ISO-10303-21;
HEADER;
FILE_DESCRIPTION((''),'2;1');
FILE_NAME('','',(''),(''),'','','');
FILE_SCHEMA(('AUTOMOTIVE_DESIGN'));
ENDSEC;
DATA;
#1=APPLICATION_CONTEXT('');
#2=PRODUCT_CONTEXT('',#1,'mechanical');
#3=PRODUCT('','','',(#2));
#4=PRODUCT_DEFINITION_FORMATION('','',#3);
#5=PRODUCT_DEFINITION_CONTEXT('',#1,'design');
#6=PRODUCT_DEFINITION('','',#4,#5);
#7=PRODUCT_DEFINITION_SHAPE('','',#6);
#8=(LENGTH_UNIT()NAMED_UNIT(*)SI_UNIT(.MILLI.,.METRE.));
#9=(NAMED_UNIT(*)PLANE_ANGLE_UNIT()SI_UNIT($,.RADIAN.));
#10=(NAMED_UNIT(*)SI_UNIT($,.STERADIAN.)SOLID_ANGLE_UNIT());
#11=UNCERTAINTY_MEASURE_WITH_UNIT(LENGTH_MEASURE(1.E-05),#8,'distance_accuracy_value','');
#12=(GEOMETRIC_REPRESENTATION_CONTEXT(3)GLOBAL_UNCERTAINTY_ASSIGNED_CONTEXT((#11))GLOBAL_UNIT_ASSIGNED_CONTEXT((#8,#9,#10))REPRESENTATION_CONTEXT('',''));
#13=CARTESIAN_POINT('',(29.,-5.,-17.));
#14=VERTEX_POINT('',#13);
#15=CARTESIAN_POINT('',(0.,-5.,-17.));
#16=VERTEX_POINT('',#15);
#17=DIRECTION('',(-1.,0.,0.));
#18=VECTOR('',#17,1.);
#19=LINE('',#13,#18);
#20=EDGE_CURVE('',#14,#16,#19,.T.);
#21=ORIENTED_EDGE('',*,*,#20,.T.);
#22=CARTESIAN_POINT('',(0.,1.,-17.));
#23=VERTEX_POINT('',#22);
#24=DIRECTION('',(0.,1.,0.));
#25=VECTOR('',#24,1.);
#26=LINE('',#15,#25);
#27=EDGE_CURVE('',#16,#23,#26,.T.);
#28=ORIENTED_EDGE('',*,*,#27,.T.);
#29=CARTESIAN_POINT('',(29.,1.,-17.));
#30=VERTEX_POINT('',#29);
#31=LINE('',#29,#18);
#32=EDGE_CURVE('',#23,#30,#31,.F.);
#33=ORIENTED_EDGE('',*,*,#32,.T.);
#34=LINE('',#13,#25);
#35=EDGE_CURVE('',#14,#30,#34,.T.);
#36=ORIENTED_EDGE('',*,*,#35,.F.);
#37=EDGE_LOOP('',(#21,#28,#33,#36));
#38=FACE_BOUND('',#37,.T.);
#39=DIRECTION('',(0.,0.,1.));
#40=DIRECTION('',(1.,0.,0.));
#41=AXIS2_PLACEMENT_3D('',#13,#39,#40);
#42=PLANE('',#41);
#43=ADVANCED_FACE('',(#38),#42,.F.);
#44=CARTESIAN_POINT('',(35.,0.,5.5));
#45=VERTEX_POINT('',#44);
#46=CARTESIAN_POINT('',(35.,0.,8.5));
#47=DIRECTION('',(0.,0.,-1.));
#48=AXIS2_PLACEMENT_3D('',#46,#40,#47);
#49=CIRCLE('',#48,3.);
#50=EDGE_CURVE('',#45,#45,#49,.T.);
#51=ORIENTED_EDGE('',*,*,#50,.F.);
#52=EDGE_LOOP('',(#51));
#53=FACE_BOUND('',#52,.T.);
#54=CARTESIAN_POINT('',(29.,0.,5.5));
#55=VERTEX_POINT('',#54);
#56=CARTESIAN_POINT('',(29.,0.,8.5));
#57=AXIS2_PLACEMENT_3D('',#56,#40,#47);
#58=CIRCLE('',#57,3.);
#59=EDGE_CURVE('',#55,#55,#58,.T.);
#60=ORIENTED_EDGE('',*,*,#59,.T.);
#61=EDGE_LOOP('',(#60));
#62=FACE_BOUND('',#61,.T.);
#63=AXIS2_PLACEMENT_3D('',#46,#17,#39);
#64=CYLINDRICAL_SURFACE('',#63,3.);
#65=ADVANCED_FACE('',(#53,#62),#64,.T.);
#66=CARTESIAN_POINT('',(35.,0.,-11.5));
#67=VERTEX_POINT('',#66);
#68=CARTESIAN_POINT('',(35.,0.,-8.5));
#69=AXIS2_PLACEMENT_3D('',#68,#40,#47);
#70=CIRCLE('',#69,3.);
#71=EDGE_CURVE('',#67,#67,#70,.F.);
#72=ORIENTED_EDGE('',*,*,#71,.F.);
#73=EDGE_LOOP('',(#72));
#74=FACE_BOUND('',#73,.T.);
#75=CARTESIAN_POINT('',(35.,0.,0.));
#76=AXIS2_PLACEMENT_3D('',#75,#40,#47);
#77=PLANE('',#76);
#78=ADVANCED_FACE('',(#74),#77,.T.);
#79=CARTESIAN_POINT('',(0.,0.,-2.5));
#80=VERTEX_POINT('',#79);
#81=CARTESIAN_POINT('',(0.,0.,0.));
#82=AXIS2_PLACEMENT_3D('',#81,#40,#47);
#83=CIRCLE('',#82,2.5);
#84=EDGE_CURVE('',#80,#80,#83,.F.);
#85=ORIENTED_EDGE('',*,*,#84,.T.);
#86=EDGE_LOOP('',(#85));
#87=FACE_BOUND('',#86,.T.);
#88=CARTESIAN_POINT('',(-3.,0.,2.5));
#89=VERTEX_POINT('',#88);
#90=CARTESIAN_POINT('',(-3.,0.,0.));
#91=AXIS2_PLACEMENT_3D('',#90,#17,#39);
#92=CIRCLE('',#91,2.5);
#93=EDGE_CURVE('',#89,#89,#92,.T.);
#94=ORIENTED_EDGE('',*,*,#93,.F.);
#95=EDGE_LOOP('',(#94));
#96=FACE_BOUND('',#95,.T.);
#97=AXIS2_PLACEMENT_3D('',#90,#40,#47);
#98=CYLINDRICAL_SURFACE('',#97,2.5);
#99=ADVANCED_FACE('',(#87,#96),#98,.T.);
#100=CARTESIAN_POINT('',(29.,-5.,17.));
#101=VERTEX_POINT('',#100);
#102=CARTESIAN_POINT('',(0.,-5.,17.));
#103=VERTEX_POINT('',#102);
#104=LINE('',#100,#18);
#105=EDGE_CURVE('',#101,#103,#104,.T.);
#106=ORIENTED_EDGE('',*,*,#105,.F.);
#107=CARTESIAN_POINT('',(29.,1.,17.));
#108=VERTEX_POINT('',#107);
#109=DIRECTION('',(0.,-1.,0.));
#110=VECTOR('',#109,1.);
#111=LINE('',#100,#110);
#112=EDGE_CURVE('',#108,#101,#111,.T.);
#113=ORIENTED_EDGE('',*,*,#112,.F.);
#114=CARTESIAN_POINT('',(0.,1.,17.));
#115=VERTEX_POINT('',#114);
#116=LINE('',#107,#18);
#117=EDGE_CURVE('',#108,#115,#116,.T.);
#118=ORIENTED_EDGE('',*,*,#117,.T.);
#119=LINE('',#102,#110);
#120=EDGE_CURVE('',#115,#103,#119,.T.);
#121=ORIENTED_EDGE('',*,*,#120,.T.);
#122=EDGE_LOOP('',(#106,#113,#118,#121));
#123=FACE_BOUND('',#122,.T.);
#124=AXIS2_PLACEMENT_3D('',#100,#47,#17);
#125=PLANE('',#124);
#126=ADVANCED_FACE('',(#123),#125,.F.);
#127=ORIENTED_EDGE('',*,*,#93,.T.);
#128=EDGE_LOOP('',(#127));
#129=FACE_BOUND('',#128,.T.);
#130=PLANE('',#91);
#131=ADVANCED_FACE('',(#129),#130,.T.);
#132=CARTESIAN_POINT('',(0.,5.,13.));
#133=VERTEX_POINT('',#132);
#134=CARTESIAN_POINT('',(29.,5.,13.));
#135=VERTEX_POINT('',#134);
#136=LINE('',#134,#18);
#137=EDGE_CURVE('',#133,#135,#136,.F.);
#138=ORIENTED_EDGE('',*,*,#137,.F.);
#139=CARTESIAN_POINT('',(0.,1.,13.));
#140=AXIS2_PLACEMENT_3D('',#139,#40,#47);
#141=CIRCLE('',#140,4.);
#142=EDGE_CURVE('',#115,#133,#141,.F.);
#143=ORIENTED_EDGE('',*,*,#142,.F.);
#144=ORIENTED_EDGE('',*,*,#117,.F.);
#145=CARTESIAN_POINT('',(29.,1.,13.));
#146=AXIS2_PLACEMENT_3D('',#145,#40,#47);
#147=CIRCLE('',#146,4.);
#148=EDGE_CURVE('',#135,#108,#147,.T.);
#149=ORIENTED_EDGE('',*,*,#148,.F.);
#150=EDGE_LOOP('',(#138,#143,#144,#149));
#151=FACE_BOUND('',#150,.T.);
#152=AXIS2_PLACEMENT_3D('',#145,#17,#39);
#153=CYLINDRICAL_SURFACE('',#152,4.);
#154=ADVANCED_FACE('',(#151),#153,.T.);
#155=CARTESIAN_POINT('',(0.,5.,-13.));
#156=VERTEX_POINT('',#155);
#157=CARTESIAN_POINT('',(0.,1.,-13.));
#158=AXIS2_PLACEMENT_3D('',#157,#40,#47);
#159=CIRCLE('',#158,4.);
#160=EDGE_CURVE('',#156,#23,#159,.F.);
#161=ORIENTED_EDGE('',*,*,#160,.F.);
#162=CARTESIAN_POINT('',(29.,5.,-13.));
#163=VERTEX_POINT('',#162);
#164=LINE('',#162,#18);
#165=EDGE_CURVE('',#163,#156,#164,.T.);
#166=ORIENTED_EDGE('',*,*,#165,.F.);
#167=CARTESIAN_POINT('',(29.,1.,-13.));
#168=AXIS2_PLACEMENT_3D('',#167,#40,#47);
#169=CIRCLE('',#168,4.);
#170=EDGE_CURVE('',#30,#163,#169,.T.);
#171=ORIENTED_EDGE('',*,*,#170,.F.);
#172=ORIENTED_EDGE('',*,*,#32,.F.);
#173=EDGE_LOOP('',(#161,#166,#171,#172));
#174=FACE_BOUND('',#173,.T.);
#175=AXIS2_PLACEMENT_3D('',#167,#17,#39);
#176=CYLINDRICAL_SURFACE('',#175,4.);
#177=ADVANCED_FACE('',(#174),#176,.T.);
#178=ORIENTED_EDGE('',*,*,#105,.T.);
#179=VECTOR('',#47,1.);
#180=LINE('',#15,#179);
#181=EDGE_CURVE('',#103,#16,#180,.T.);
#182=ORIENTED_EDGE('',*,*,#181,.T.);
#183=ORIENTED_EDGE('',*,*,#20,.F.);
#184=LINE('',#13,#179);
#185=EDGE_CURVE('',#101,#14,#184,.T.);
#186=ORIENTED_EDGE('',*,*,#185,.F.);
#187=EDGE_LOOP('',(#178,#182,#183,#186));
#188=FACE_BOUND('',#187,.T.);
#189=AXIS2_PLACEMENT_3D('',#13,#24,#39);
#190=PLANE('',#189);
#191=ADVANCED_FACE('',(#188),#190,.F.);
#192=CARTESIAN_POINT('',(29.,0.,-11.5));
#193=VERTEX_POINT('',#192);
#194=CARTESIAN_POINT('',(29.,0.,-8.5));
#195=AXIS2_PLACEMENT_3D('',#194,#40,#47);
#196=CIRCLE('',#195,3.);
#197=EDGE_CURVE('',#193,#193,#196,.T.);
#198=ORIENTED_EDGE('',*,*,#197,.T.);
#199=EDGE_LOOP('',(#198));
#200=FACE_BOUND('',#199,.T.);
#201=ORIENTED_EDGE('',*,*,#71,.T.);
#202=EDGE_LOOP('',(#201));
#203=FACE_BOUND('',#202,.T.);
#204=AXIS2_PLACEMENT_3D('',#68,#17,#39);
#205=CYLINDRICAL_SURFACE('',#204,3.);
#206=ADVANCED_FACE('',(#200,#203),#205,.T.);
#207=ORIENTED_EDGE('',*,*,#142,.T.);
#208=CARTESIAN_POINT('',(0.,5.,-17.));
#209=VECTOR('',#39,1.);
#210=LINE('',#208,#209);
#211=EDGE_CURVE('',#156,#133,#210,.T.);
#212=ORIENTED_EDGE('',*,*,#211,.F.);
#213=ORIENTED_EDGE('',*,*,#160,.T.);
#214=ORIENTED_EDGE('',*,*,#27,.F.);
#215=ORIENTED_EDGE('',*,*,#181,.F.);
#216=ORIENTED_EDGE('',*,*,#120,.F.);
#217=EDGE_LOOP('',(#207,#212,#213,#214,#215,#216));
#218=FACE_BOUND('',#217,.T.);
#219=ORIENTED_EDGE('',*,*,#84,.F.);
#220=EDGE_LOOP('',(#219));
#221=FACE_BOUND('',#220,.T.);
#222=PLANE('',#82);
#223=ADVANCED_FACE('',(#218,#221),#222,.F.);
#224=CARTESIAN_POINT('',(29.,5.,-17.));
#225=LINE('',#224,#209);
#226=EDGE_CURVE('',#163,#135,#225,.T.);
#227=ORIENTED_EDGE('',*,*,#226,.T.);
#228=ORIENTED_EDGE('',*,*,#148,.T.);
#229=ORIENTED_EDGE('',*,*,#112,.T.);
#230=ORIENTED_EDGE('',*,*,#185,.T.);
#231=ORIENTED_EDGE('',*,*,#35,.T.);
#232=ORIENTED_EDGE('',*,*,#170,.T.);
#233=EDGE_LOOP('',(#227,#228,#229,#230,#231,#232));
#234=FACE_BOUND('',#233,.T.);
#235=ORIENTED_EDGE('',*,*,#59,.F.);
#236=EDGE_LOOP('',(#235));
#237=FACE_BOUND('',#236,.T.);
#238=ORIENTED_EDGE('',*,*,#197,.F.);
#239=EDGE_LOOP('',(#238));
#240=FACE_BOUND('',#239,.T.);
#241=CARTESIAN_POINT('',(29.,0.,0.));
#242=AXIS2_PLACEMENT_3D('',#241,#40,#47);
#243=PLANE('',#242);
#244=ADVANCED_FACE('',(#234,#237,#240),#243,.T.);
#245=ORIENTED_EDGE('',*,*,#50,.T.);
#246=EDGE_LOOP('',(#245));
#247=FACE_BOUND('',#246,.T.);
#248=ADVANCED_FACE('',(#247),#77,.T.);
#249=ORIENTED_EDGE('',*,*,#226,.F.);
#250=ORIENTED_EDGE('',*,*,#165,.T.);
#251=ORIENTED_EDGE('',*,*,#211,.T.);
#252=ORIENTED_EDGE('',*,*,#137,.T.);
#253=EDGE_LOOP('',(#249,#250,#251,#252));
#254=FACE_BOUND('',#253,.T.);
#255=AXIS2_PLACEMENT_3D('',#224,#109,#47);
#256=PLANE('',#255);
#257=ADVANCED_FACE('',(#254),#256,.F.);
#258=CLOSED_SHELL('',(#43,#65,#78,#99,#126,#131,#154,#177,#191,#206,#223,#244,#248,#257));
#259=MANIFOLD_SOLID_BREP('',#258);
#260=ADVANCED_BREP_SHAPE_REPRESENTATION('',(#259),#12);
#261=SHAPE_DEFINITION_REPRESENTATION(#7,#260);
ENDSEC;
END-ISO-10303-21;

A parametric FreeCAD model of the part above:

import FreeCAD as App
import Part
import Sketcher

V = App.Vector
Q = App.Units.Quantity


def edges_at(feature, points):
    """Names of the edges that pass closest to the given points."""
    edges = feature.Shape.Edges
    near = lambda p: min(range(len(edges)), key=lambda i: edges[i].distToShape(Part.Vertex(*p))[0])
    return sorted({f"Edge{near(p) + 1}" for p in points})


def add_polygon(sketch, points):
    """Adds a closed chain of lines whose ends are joined by coincident constraints."""
    first, n = sketch.GeometryCount, len(points)
    for a, b in zip(points, points[1:] + points[:1]):
        sketch.addGeometry(Part.LineSegment(App.Vector(*a, 0), App.Vector(*b, 0)), False)
    for i in range(n):
        sketch.addConstraint(Sketcher.Constraint("Coincident", first + i, 2, first + (i + 1) % n, 1))

doc = App.newDocument("Part")
params = doc.addObject("Spreadsheet::Sheet", "Params")
for row, (alias, value) in enumerate([
    ("sketch1_width", "10 mm"),
    ("sketch1_height", "34 mm"),
    ("pad1_length", "29 mm"),
    ("fillet_radius", "4 mm"),
    ("sketch2_diameter", "6 mm"),
    ("pad2_length", "6 mm"),
    ("sketch3_diameter", "5 mm"),
    ("pad3_length", "3 mm"),
], start=1):
    params.set(f"A{row}", alias)
    params.set(f"B{row}", "=" + value)
    params.setAlias(f"B{row}", alias)

body = doc.addObject("PartDesign::Body", "Body")

# Sketch on YZ plane
sketch1 = body.newObject("Sketcher::SketchObject", "Sketch")
sketch1.AttachmentSupport = (doc.getObject("YZ_Plane"), [""])
sketch1.MapMode = "FlatFace"
add_polygon(sketch1, [(5, 17), (-5, 17), (-5, -17), (5, -17)])  # lines 0-3
sketch1.addConstraint([
    Sketcher.Constraint("Horizontal", 0),
    Sketcher.Constraint("Vertical", 1),
    Sketcher.Constraint("Horizontal", 2),
    Sketcher.Constraint("Vertical", 3),
    Sketcher.Constraint("Symmetric", 0, 2, 2, 2, -1, 1),
    Sketcher.Constraint("DistanceX", 0, 2, 0, 1, Q("10 mm")),
    Sketcher.Constraint("DistanceY", 1, 2, 1, 1, Q("34 mm")),
])
sketch1.setExpression("Constraints[9]", "Params.sketch1_width")
sketch1.setExpression("Constraints[10]", "Params.sketch1_height")
pad1 = body.newObject("PartDesign::Pad", "Pad")
pad1.Profile = sketch1
pad1.setExpression("Length", "Params.pad1_length")
doc.recompute()

fillet = body.newObject("PartDesign::Fillet", "Fillet")
fillet.Base = (pad1, edges_at(pad1, [(14.5, 5, 17), (14.5, 5, -17)]))
fillet.setExpression("Radius", "Params.fillet_radius")

# Sketch on YZ plane
sketch2 = body.newObject("Sketcher::SketchObject", "Sketch001")
sketch2.AttachmentSupport = (doc.getObject("YZ_Plane"), [""])
sketch2.MapMode = "FlatFace"
sketch2.AttachmentOffset = App.Placement(V(0, 0, 29), App.Rotation())
sketch2.addGeometry([
    Part.Circle(V(0, 8.5, 0), V(0, 0, 1), 3),
    Part.Circle(V(0, -8.5, 0), V(0, 0, 1), 3),
], False)
sketch2.addConstraint([
    Sketcher.Constraint("Equal", 0, 1),
    Sketcher.Constraint("Symmetric", 0, 3, 1, 3, -1, 1),
    Sketcher.Constraint("PointOnObject", 0, 3, -2),
    Sketcher.Constraint("Diameter", 0, Q("6 mm")),
    Sketcher.Constraint("DistanceY", 1, 3, 0, 3, Q("17 mm")),
])
sketch2.setExpression("Constraints[3]", "Params.sketch2_diameter")
pad2 = body.newObject("PartDesign::Pad", "Pad001")
pad2.Profile = sketch2
pad2.setExpression("Length", "Params.pad2_length")

# Sketch on YZ plane
sketch3 = body.newObject("Sketcher::SketchObject", "Sketch002")
sketch3.AttachmentSupport = (doc.getObject("YZ_Plane"), [""])
sketch3.MapMode = "FlatFace"
sketch3.addGeometry(Part.Circle(V(0, 0, 0), V(0, 0, 1), 2.5), False)
sketch3.addConstraint([
    Sketcher.Constraint("Coincident", 0, 3, -1, 1),
    Sketcher.Constraint("Diameter", 0, Q("5 mm")),
])
sketch3.setExpression("Constraints[1]", "Params.sketch3_diameter")
pad3 = body.newObject("PartDesign::Pad", "Pad002")
pad3.Profile = sketch3
pad3.setExpression("Length", "Params.pad3_length")
pad3.Reversed = True

doc.recompute()
